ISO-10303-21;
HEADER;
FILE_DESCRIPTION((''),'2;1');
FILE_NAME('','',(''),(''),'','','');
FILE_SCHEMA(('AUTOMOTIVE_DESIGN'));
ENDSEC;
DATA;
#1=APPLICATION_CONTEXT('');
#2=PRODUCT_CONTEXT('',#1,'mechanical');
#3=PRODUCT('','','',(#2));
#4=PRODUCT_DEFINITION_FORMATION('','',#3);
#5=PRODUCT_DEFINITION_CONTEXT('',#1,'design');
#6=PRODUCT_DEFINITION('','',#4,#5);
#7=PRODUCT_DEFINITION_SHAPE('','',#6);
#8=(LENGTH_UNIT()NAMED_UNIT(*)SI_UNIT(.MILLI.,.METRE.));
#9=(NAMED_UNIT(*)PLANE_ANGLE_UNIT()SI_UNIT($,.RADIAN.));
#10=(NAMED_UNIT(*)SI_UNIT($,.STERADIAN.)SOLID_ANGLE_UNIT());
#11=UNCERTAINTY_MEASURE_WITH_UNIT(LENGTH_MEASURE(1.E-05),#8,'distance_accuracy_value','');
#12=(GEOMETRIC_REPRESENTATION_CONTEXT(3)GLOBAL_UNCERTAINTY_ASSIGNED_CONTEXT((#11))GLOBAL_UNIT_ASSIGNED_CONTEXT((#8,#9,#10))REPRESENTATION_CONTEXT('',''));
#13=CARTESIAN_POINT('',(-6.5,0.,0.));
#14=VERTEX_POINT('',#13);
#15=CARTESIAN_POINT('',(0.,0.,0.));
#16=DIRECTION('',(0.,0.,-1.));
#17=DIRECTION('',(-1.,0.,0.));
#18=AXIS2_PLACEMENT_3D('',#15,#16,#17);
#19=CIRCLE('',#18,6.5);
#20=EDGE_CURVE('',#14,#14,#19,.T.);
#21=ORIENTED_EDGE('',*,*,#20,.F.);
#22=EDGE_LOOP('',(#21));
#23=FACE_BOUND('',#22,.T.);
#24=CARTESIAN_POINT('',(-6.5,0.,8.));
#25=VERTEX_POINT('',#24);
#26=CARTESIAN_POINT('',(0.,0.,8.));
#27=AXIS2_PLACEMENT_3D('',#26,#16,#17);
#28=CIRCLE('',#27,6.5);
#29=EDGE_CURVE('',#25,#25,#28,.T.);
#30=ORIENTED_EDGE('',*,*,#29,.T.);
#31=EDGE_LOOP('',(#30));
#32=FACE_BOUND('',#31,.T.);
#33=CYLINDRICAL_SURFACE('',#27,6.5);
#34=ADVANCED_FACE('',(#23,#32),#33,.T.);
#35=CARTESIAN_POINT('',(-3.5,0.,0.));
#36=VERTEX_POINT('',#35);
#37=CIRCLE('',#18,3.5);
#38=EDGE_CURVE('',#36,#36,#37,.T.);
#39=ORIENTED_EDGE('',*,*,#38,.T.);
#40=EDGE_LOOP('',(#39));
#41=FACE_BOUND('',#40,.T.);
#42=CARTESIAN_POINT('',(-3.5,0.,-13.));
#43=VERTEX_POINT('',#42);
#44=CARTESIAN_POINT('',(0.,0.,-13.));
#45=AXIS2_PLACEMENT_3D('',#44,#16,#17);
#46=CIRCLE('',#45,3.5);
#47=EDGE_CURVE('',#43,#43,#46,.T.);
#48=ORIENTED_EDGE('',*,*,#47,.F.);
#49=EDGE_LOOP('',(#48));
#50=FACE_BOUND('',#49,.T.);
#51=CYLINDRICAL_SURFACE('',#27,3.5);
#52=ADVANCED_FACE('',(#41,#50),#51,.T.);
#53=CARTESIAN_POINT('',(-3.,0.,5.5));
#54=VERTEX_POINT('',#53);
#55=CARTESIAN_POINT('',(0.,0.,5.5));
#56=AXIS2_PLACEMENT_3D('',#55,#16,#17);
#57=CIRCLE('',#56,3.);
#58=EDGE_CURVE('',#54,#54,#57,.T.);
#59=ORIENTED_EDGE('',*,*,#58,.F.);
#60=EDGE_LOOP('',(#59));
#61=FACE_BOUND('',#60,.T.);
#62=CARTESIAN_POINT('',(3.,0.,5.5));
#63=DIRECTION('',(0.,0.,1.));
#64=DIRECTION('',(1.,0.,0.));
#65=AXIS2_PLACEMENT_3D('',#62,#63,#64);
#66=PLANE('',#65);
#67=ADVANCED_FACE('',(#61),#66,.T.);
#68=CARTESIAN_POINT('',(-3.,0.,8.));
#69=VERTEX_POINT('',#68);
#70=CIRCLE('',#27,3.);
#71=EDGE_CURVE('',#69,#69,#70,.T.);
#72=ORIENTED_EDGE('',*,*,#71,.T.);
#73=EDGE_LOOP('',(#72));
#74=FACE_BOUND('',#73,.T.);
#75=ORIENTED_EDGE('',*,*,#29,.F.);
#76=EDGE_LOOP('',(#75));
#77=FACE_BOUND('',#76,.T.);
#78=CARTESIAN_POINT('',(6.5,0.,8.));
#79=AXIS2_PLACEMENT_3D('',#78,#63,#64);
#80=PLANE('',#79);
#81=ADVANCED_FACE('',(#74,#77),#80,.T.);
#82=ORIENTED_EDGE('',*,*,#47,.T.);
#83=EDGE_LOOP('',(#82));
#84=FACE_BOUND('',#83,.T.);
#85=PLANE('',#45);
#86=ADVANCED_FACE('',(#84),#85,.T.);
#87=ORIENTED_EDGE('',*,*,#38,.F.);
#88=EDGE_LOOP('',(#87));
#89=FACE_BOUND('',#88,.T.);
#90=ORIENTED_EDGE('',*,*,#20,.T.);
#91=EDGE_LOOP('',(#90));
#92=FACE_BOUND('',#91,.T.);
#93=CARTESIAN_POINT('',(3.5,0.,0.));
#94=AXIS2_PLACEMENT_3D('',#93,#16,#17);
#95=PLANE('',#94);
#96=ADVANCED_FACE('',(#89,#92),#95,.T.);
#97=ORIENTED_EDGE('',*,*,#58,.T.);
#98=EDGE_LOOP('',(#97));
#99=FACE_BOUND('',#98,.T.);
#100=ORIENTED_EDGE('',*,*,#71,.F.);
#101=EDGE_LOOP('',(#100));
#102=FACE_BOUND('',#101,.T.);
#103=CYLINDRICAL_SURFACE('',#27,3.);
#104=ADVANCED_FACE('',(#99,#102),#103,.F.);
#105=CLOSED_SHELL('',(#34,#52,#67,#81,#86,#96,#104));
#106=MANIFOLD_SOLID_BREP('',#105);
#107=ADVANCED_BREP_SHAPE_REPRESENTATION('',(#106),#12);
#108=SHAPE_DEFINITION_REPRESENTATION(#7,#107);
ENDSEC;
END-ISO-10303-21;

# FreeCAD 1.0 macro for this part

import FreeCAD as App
import Part
import Sketcher
Q = App.Units.Quantity

doc = App.newDocument("Part")
params = doc.addObject("Spreadsheet::Sheet", "Params")
for row, (alias, value) in enumerate([
    ("sketch1_width", "3 mm"),
    ("sketch1_height", "13 mm"),
    ("sketch1_height2", "8 mm"),
    ("sketch1_width2", "3.5 mm"),
    ("sketch1_height3", "18.5 mm"),
    ("revolution_angle", "360 deg"),
], start=1):
    params.set(f"A{row}", alias)
    params.set(f"B{row}", "=" + value)
    params.setAlias(f"B{row}", alias)

body = doc.addObject("PartDesign::Body", "Body")

sketch1 = body.newObject("Sketcher::SketchObject", "Sketch")
sketch1.AttachmentSupport = (doc.getObject("XZ_Plane"), [""])
sketch1.MapMode = "FlatFace"
sketch1.addGeometry([
    Part.LineSegment(App.Vector(3, 5.5, 0), App.Vector(0, 5.5, 0)),
    Part.LineSegment(App.Vector(0, 5.5, 0), App.Vector(0, -13, 0)),
    Part.LineSegment(App.Vector(0, -13, 0), App.Vector(3.5, -13, 0)),
    Part.LineSegment(App.Vector(3.5, -13, 0), App.Vector(3.5, 0, 0)),
    Part.LineSegment(App.Vector(3.5, 0, 0), App.Vector(6.5, 0, 0)),
    Part.LineSegment(App.Vector(6.5, 0, 0), App.Vector(6.5, 8, 0)),
    Part.LineSegment(App.Vector(6.5, 8, 0), App.Vector(3, 8, 0)),
    Part.LineSegment(App.Vector(3, 8, 0), App.Vector(3, 5.5, 0)),
], False)
sketch1.addConstraint([
    Sketcher.Constraint("Coincident", 0, 2, 1, 1),
    Sketcher.Constraint("Coincident", 1, 2, 2, 1),
    Sketcher.Constraint("Coincident", 2, 2, 3, 1),
    Sketcher.Constraint("Coincident", 3, 2, 4, 1),
    Sketcher.Constraint("Coincident", 4, 2, 5, 1),
    Sketcher.Constraint("Coincident", 5, 2, 6, 1),
    Sketcher.Constraint("Coincident", 6, 2, 7, 1),
    Sketcher.Constraint("Coincident", 7, 2, 0, 1),
    Sketcher.Constraint("Horizontal", 0),
    Sketcher.Constraint("Vertical", 1),
    Sketcher.Constraint("Horizontal", 2),
    Sketcher.Constraint("Vertical", 3),
    Sketcher.Constraint("Horizontal", 4),
    Sketcher.Constraint("Vertical", 5),
    Sketcher.Constraint("Horizontal", 6),
    Sketcher.Constraint("Vertical", 7),
    Sketcher.Constraint("PointOnObject", 0, 2, -2),
    Sketcher.Constraint("PointOnObject", 3, 2, -1),
    Sketcher.Constraint("Equal", 0, 4),
    Sketcher.Constraint("DistanceX", 0, 2, 0, 1, Q("3 mm")),
    Sketcher.Constraint("DistanceY", 3, 1, 3, 2, Q("13 mm")),
    Sketcher.Constraint("DistanceY", 5, 1, 5, 2, Q("8 mm")),
    Sketcher.Constraint("DistanceX", 2, 1, 2, 2, Q("3.5 mm")),
    Sketcher.Constraint("DistanceY", 1, 2, 1, 1, Q("18.5 mm")),
])
sketch1.setExpression("Constraints[19]", "Params.sketch1_width")
sketch1.setExpression("Constraints[20]", "Params.sketch1_height")
sketch1.setExpression("Constraints[21]", "Params.sketch1_height2")
sketch1.setExpression("Constraints[22]", "Params.sketch1_width2")
sketch1.setExpression("Constraints[23]", "Params.sketch1_height3")
revolution = body.newObject("PartDesign::Revolution", "Revolution")
revolution.Profile = sketch1
revolution.ReferenceAxis = (sketch1, ["V_Axis"])
revolution.setExpression("Angle", "Params.revolution_angle")

doc.recompute()
